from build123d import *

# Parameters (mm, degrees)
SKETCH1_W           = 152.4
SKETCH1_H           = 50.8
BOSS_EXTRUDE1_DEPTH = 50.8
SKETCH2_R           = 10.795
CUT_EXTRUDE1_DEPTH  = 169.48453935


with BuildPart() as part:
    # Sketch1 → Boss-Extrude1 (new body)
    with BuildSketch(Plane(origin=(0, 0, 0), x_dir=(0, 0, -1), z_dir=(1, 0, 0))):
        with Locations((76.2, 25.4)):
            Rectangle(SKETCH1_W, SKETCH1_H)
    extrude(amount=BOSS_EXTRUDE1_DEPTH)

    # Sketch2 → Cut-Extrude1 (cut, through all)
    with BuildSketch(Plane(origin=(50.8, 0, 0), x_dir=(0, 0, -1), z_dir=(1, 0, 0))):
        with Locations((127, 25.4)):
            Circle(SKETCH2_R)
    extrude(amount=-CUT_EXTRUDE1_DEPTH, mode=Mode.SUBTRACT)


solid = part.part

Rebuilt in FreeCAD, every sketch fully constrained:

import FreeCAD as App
import Part
import Sketcher

V = App.Vector
Q = App.Units.Quantity


def add_polygon(sketch, points):
    """Adds a closed chain of lines whose ends are joined by coincident constraints."""
    first, n = sketch.GeometryCount, len(points)
    for a, b in zip(points, points[1:] + points[:1]):
        sketch.addGeometry(Part.LineSegment(App.Vector(*a, 0), App.Vector(*b, 0)), False)
    for i in range(n):
        sketch.addConstraint(Sketcher.Constraint("Coincident", first + i, 2, first + (i + 1) % n, 1))

doc = App.newDocument("Part")
body = doc.addObject("PartDesign::Body", "Body")

# Sketch on YZ plane
sketch1 = body.newObject("Sketcher::SketchObject", "Sketch")
sketch1.AttachmentSupport = (doc.getObject("YZ_Plane"), [""])
sketch1.MapMode = "FlatFace"
add_polygon(sketch1, [(51, 0), (0, 0), (0, -152), (51, -152)])  # lines 0-3
sketch1.addConstraint(Sketcher.Constraint("Horizontal", 0))
sketch1.addConstraint(Sketcher.Constraint("Vertical", 1))
sketch1.addConstraint(Sketcher.Constraint("Horizontal", 2))
sketch1.addConstraint(Sketcher.Constraint("Vertical", 3))
sketch1.addConstraint(Sketcher.Constraint("Coincident", 0, 2, -1, 1))
sketch1.addConstraint(Sketcher.Constraint("DistanceX", 0, 2, 0, 1, Q("2 in")))
sketch1.addConstraint(Sketcher.Constraint("DistanceY", 1, 2, 1, 1, Q("6 in")))
pad1 = body.newObject("PartDesign::Pad", "Pad")
pad1.Profile = sketch1
pad1.Length = Q("2 in")

# Sketch on YZ plane
sketch2 = body.newObject("Sketcher::SketchObject", "Sketch001")
sketch2.AttachmentSupport = (doc.getObject("YZ_Plane"), [""])
sketch2.MapMode = "FlatFace"
sketch2.AttachmentOffset = App.Placement(V(0, 0, 2 * 25.4), App.Rotation())
sketch2.addGeometry(Part.Circle(V(25, -127, 0), V(0, 0, 1), 11), False)
sketch2.addConstraint(Sketcher.Constraint("Diameter", 0, Q("0.85 in")))
sketch2.addConstraint(Sketcher.Constraint("DistanceX", -1, 1, 0, 3, Q("1 in")))
sketch2.addConstraint(Sketcher.Constraint("DistanceY", 0, 3, -1, 1, Q("5 in")))
pocket1 = body.newObject("PartDesign::Pocket", "Pocket")
pocket1.Profile = sketch2
pocket1.Type = "ThroughAll"

doc.recompute()
